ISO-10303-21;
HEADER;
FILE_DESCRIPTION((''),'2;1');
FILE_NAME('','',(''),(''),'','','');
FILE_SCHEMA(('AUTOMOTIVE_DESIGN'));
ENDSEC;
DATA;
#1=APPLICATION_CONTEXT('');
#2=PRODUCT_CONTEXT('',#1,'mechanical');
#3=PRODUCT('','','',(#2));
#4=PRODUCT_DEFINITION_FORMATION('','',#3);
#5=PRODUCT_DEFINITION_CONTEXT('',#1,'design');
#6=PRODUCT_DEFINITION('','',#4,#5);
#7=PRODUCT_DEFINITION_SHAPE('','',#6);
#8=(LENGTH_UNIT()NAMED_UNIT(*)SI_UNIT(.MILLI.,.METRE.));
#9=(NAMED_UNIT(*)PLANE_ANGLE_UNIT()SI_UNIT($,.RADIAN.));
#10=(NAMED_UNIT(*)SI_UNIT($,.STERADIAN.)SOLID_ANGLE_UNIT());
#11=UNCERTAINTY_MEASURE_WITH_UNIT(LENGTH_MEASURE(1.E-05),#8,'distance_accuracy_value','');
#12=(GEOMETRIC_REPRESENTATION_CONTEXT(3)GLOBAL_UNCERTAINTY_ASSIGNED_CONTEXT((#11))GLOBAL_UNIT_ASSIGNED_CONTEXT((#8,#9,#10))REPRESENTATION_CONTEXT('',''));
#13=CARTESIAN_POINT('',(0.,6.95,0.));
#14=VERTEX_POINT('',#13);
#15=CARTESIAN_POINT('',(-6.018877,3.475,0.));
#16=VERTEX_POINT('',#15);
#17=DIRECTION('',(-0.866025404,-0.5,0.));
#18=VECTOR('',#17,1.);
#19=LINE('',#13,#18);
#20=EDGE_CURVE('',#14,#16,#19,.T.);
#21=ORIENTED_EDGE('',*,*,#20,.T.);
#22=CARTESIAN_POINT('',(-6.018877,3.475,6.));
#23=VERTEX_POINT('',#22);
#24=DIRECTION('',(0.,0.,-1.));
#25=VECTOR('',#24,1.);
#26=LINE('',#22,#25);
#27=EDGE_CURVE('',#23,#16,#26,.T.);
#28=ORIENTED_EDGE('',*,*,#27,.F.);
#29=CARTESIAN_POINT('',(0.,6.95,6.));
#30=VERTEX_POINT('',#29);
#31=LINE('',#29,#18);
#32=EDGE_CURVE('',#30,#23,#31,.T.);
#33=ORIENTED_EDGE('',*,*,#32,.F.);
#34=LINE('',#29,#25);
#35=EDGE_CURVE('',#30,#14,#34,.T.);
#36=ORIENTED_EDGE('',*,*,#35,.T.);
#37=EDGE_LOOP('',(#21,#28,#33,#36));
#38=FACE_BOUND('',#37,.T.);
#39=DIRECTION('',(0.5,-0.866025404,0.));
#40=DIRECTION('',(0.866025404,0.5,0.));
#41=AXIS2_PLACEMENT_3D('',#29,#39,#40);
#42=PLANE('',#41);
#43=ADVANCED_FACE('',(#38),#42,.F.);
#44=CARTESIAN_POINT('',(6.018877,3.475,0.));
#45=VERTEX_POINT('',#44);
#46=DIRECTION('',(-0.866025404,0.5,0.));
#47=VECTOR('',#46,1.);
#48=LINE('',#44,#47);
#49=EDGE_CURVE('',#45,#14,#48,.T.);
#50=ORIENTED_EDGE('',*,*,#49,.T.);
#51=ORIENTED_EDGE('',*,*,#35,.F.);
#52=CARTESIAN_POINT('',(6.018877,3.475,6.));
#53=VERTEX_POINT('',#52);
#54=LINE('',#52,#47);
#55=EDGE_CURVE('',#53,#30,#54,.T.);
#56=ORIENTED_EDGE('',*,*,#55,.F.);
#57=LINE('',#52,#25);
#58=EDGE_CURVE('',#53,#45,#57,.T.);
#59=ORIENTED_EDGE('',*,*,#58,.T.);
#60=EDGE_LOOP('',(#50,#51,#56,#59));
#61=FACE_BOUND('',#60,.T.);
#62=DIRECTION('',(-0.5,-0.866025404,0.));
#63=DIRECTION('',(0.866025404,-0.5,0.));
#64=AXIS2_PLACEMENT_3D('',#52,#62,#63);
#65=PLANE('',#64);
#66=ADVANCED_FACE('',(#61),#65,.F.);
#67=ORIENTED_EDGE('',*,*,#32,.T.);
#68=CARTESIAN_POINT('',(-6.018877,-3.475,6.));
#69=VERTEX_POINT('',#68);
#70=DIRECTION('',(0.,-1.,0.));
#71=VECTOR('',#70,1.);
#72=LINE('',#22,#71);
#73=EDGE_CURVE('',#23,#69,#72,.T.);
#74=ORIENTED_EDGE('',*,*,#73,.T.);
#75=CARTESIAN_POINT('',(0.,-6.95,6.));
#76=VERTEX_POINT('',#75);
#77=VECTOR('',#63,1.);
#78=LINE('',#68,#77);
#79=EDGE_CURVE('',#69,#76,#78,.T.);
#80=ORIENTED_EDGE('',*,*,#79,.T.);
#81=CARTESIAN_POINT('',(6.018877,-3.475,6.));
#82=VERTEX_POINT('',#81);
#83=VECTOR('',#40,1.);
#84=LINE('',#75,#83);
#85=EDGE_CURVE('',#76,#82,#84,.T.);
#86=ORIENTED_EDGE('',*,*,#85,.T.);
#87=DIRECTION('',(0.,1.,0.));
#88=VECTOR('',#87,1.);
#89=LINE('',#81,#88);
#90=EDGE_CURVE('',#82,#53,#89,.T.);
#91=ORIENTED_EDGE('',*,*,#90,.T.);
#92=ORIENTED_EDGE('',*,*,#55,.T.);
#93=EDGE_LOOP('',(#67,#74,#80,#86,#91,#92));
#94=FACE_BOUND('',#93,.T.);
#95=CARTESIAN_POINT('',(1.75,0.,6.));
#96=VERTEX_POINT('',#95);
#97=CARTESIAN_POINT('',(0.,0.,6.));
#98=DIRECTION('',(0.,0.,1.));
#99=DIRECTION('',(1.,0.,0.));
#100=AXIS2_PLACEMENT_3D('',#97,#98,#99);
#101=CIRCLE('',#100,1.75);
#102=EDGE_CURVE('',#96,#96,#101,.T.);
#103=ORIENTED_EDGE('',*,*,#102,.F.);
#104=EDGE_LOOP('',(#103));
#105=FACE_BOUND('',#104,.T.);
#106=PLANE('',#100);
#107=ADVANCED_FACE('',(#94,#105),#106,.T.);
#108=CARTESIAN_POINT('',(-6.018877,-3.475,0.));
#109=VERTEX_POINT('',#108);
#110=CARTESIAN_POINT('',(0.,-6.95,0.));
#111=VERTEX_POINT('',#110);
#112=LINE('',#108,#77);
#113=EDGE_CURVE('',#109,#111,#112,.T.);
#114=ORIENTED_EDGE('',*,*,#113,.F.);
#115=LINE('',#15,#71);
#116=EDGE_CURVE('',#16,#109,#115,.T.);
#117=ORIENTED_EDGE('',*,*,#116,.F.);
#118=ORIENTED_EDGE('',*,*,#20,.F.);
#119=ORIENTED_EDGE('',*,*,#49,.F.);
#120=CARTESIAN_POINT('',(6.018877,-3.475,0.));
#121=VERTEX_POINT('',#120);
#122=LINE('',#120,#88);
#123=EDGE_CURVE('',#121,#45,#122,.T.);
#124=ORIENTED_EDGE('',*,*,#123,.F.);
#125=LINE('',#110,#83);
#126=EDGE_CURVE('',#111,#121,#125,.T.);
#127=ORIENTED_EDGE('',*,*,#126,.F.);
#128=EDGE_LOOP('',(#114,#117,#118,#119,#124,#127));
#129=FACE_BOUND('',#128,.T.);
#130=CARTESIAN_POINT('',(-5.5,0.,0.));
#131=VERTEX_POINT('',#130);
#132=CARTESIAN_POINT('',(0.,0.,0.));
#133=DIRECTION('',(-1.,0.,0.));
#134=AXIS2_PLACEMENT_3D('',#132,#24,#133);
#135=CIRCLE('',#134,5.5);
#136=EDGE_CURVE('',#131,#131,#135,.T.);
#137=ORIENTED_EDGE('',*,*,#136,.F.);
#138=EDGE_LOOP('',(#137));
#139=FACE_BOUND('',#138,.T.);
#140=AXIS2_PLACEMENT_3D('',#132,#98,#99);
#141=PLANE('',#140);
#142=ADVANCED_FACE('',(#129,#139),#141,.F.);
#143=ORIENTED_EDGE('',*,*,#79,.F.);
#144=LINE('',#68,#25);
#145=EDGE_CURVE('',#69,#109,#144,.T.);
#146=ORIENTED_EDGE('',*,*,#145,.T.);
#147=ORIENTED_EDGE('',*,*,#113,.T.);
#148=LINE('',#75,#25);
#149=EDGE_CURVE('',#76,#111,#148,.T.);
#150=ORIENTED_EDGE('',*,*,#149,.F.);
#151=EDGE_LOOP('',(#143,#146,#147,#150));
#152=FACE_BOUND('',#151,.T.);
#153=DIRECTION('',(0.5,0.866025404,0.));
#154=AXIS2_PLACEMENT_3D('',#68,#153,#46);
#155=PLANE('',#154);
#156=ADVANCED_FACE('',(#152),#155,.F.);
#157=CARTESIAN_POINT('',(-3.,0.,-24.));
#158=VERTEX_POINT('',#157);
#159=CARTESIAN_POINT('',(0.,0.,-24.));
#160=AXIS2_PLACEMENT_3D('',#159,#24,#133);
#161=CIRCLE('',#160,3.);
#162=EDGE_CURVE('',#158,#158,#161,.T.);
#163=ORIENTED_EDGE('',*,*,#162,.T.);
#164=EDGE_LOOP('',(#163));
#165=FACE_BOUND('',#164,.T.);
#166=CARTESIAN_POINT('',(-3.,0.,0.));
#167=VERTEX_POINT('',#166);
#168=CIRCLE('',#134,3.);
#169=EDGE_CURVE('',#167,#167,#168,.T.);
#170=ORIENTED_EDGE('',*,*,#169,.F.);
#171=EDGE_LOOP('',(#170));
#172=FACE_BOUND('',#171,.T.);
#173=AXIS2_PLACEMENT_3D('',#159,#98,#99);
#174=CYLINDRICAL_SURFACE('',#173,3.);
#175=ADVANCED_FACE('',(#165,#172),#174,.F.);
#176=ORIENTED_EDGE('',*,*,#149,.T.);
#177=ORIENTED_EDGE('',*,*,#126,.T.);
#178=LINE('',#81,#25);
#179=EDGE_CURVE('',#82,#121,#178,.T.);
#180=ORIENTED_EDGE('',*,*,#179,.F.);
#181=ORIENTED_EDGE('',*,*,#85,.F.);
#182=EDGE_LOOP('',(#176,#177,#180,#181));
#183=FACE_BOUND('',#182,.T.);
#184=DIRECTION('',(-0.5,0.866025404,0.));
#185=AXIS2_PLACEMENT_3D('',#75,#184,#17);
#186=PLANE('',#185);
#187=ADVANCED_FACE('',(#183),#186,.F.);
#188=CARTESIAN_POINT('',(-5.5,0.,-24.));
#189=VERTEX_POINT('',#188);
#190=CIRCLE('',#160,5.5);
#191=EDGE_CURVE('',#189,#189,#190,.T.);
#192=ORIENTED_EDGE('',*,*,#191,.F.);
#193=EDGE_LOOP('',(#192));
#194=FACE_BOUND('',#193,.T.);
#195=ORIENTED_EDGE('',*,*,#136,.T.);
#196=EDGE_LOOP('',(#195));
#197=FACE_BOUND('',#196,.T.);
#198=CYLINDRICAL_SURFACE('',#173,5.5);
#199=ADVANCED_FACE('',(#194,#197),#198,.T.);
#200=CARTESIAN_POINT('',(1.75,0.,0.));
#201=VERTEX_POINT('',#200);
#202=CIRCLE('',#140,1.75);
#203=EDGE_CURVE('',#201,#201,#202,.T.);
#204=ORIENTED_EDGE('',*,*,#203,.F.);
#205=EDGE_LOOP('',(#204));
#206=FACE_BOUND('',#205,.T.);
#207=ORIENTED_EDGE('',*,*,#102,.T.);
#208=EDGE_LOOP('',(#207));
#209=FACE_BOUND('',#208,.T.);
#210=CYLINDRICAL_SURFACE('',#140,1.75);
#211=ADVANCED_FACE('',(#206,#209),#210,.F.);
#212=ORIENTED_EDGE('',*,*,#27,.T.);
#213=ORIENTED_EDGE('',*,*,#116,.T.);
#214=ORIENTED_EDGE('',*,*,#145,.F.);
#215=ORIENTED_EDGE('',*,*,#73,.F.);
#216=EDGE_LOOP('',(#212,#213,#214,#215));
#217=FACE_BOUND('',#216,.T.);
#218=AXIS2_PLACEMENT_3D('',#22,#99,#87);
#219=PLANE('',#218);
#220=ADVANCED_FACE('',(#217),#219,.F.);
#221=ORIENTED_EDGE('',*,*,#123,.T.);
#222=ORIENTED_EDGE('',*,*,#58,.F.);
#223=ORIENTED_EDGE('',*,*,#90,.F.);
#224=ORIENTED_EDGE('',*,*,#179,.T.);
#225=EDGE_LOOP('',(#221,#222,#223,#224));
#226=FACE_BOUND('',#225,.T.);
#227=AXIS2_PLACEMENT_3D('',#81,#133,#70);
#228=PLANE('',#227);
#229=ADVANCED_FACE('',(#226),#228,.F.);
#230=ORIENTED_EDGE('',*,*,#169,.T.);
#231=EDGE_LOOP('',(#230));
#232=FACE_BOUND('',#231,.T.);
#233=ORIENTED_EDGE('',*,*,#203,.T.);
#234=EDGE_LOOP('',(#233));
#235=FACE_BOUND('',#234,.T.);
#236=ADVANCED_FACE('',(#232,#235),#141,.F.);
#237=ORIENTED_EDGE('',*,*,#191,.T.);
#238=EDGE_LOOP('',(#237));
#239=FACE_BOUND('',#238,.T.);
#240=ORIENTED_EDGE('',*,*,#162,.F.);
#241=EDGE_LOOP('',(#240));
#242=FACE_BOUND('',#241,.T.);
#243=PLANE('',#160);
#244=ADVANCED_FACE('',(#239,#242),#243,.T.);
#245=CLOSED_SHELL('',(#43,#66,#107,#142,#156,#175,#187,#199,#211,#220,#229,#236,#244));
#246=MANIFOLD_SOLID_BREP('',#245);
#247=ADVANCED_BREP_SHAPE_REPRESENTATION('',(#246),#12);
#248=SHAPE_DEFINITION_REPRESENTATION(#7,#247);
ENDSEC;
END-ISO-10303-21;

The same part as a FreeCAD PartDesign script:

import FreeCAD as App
import Part
import Sketcher

V = App.Vector
Q = App.Units.Quantity


def add_polygon(sketch, points):
    """Adds a closed chain of lines whose ends are joined by coincident constraints."""
    first, n = sketch.GeometryCount, len(points)
    for a, b in zip(points, points[1:] + points[:1]):
        sketch.addGeometry(Part.LineSegment(App.Vector(*a, 0), App.Vector(*b, 0)), False)
    for i in range(n):
        sketch.addConstraint(Sketcher.Constraint("Coincident", first + i, 2, first + (i + 1) % n, 1))

doc = App.newDocument("Part")
params = doc.addObject("Spreadsheet::Sheet", "Params")
for row, (alias, value) in enumerate([
    ("sketch1_height", "6.95 mm"),
    ("pad1_length", "6 mm"),
    ("sketch2_diameter", "3.5 mm"),
    ("pocket1_length", "6 mm"),
    ("sketch3_diameter", "11 mm"),
    ("sketch3_diameter2", "6 mm"),
    ("pad2_length", "24 mm"),
], start=1):
    params.set(f"A{row}", alias)
    params.set(f"B{row}", "=" + value)
    params.setAlias(f"B{row}", alias)

body = doc.addObject("PartDesign::Body", "Body")

# Sketch on XY plane
sketch1 = doc.addObject("Sketcher::SketchObject", "Sketch")
body.addObject(sketch1)
sketch1.AttachmentSupport = (doc.XY_Plane, [""])
sketch1.MapMode = "FlatFace"
add_polygon(sketch1, [(0, 7), (-6, 3), (-6, -3), (0, -7), (6, -3), (6, 3)])  # lines 0-5
sketch1.addConstraint([
    Sketcher.Constraint("Vertical", 1),
    Sketcher.Constraint("Vertical", 4),
    Sketcher.Constraint("Symmetric", 0, 2, 3, 2, -1, 1),
    Sketcher.Constraint("Symmetric", 2, 2, 5, 2, -1, 1),
    Sketcher.Constraint("PointOnObject", 2, 2, -2),
    Sketcher.Constraint("Parallel", 2, 5),
    Sketcher.Constraint("Horizontal", 1, 2, 3, 2),
    Sketcher.Constraint("Angle", 0, Q("-150 deg")),
    Sketcher.Constraint("DistanceY", 1, 2, 1, 1, Q("6.95 mm")),
    Sketcher.Constraint("DistanceY", 2, 2, 5, 2, Q("13.9 mm")),
])
sketch1.setExpression("Constraints[14]", "Params.sketch1_height")
pad1 = doc.addObject("PartDesign::Pad", "Pad")
body.addObject(pad1)
pad1.Profile = sketch1
pad1.setExpression("Length", "Params.pad1_length")

# Sketch on XY plane
sketch2 = doc.addObject("Sketcher::SketchObject", "Sketch001")
body.addObject(sketch2)
sketch2.AttachmentSupport = (doc.XY_Plane, [""])
sketch2.MapMode = "FlatFace"
sketch2.AttachmentOffset = App.Placement(V(0, 0, 6), App.Rotation())
sketch2.addGeometry(Part.Circle(V(0, 0, 0), V(0, 0, 1), 1.8), False)
sketch2.addConstraint([
    Sketcher.Constraint("Coincident", 0, 3, -1, 1),
    Sketcher.Constraint("Diameter", 0, Q("3.5 mm")),
])
sketch2.setExpression("Constraints[1]", "Params.sketch2_diameter")
pocket1 = doc.addObject("PartDesign::Pocket", "Pocket")
body.addObject(pocket1)
pocket1.Profile = sketch2
pocket1.setExpression("Length", "Params.pocket1_length")

# Sketch on XY plane
sketch3 = doc.addObject("Sketcher::SketchObject", "Sketch002")
body.addObject(sketch3)
sketch3.AttachmentSupport = (doc.XY_Plane, [""])
sketch3.MapMode = "FlatFace"
sketch3.addGeometry([
    Part.Circle(V(0, 0, 0), V(0, 0, 1), 5.5),
    Part.Circle(V(0, 0, 0), V(0, 0, 1), 3),
], False)
sketch3.addConstraint([
    Sketcher.Constraint("Coincident", 0, 3, -1, 1),
    Sketcher.Constraint("Coincident", 1, 3, -1, 1),
    Sketcher.Constraint("Diameter", 0, Q("11 mm")),
    Sketcher.Constraint("Diameter", 1, Q("6 mm")),
])
sketch3.setExpression("Constraints[2]", "Params.sketch3_diameter")
sketch3.setExpression("Constraints[3]", "Params.sketch3_diameter2")
pad2 = doc.addObject("PartDesign::Pad", "Pad001")
body.addObject(pad2)
pad2.Profile = sketch3
pad2.setExpression("Length", "Params.pad2_length")
pad2.Reversed = True

doc.recompute()
